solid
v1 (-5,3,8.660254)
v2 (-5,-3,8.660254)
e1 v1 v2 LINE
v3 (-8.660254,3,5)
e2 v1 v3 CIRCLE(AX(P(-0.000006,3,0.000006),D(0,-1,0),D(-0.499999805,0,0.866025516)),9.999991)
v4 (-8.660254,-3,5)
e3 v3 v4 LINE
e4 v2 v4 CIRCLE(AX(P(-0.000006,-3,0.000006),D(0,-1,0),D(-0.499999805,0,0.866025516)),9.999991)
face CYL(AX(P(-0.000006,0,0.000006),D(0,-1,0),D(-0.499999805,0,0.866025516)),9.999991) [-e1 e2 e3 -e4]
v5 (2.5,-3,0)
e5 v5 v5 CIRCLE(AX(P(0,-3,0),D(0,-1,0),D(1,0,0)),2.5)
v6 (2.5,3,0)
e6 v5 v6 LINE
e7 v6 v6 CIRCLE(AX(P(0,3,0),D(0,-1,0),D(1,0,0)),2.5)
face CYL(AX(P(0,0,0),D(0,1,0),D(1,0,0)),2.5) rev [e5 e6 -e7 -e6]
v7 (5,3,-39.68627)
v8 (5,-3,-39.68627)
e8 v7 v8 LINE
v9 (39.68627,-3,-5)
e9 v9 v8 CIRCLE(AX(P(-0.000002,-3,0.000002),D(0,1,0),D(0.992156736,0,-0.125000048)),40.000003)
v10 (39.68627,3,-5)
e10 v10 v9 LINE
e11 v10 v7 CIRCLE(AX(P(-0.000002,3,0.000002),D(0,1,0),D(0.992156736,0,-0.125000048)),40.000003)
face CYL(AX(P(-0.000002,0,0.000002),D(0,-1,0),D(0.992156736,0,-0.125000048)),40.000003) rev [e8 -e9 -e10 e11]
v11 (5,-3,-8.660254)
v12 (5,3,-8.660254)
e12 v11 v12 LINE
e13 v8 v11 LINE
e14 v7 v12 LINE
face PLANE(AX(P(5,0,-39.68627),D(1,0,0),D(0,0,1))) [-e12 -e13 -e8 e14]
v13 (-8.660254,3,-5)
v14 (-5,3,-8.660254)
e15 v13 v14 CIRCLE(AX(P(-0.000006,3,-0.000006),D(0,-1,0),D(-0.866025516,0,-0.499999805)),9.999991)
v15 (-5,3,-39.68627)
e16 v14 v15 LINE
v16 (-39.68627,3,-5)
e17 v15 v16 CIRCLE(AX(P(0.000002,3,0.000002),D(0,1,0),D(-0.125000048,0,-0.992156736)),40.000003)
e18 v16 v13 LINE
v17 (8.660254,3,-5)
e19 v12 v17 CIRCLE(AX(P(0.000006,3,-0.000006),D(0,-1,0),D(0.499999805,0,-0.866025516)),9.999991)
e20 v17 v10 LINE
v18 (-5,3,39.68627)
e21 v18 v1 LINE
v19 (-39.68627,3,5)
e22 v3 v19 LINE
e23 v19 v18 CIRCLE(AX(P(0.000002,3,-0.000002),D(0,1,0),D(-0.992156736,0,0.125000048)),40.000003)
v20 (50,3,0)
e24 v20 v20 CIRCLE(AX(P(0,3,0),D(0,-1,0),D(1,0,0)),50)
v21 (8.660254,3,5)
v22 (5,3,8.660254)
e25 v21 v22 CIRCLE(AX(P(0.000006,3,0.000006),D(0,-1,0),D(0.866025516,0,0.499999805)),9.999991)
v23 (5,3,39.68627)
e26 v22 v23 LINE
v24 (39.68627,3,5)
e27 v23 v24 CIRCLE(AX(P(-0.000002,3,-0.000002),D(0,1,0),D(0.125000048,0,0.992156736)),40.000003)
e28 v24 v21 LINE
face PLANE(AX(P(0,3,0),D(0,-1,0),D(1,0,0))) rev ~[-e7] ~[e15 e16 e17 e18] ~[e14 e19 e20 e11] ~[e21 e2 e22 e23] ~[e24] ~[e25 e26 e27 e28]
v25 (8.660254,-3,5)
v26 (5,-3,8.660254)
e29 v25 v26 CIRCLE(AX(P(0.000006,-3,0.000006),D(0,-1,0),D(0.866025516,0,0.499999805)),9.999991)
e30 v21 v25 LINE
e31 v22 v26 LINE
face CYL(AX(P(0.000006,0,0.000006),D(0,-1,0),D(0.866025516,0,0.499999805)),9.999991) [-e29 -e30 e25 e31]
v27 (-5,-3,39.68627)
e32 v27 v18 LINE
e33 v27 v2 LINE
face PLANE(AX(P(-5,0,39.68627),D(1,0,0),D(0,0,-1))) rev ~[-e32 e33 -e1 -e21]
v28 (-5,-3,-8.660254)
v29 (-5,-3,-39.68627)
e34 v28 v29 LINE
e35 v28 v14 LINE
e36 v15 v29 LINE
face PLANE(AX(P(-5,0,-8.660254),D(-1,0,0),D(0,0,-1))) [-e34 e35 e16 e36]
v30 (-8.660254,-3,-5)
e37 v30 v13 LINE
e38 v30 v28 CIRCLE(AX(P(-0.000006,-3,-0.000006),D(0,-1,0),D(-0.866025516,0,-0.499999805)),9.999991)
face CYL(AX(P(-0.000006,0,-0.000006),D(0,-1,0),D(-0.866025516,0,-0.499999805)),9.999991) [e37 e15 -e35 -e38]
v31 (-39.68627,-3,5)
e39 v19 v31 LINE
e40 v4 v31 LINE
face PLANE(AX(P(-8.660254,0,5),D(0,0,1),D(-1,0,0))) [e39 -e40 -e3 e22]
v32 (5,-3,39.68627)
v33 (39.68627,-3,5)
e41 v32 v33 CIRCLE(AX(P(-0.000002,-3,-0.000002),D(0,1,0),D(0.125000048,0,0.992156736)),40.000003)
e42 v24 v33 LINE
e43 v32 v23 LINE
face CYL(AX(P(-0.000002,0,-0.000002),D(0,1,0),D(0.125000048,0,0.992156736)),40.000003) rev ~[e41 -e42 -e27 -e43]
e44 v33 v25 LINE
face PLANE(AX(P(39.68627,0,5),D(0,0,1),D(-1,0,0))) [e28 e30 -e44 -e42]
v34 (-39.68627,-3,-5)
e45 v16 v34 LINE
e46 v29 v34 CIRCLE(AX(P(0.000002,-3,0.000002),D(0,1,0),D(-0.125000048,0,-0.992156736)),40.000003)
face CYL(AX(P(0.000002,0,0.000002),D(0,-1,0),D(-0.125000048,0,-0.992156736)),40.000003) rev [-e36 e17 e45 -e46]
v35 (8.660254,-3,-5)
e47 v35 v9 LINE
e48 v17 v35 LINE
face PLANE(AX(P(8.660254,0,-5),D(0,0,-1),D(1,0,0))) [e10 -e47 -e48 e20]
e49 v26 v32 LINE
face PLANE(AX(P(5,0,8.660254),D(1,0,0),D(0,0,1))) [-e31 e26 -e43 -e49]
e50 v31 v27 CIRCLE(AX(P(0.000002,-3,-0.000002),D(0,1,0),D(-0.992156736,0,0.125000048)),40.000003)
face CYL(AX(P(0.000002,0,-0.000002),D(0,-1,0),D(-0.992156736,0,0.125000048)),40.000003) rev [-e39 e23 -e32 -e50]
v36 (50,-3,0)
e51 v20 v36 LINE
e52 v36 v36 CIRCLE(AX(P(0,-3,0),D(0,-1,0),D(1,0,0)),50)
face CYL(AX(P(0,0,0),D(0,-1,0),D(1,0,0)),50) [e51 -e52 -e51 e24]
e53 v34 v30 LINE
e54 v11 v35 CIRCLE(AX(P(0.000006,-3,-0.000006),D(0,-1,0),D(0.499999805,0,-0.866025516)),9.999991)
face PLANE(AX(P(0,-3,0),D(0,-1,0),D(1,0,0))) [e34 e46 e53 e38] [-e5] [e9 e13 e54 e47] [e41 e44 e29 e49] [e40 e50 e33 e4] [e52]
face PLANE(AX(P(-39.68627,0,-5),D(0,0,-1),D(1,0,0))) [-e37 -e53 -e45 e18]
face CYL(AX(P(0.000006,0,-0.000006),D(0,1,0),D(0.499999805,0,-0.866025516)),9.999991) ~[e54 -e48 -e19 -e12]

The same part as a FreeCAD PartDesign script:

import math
import FreeCAD as App
import Part
import Sketcher

V = App.Vector

doc = App.newDocument("Part")
body = doc.addObject("PartDesign::Body", "Body")

# Sketch on XZ plane
sketch1 = body.newObject("Sketcher::SketchObject", "Sketch")
sketch1.AttachmentSupport = (doc.getObject("XZ_Plane"), [""])
sketch1.MapMode = "FlatFace"
sketch1.addGeometry([
    Part.Circle(V(0, 0, 0), V(0, 0, 1), 50),  # 0
    Part.LineSegment(V(-5, -8.7, 0), V(-5, -39.7, 0)),  # 1
    Part.ArcOfCircle(Part.Circle(V(0, 0, 0), V(0, 0, 1), 40), math.radians(-173), math.radians(-97)),  # 2
    Part.LineSegment(V(-39.7, -5, 0), V(-8.7, -5, 0)),  # 3
    Part.ArcOfCircle(Part.Circle(V(0, 0, 0), V(0, 0, 1), 10), math.radians(-150), math.radians(-120)),  # 4
    Part.Circle(V(0, 0, 0), V(0, 0, 1), 2.5),  # 5
    Part.ArcOfCircle(Part.Circle(V(0, 0, 0), V(0, 0, 1), 40), math.radians(-83), math.radians(-7)),  # 6
    Part.LineSegment(V(5, -39.7, 0), V(5, -8.7, 0)),  # 7
    Part.ArcOfCircle(Part.Circle(V(0, 0, 0), V(0, 0, 1), 10), math.radians(-60), math.radians(-30)),  # 8
    Part.LineSegment(V(8.7, -5, 0), V(39.7, -5, 0)),  # 9
    Part.LineSegment(V(-8.7, 5, 0), V(-39.7, 5, 0)),  # 10
    Part.ArcOfCircle(Part.Circle(V(0, 0, 0), V(0, 0, 1), 40), math.radians(97), math.radians(173)),  # 11
    Part.LineSegment(V(-5, 39.7, 0), V(-5, 8.7, 0)),  # 12
    Part.ArcOfCircle(Part.Circle(V(0, 0, 0), V(0, 0, 1), 10), math.radians(120), math.radians(150)),  # 13
    Part.LineSegment(V(5, 8.7, 0), V(5, 39.7, 0)),  # 14
    Part.ArcOfCircle(Part.Circle(V(0, 0, 0), V(0, 0, 1), 40), math.radians(7), math.radians(83)),  # 15
    Part.LineSegment(V(39.7, 5, 0), V(8.7, 5, 0)),  # 16
    Part.ArcOfCircle(Part.Circle(V(0, 0, 0), V(0, 0, 1), 10), math.radians(30), math.radians(60)),  # 17
], False)
sketch1.addConstraint([
    Sketcher.Constraint("Coincident", 1, 2, 2, 2),
    Sketcher.Constraint("Coincident", 2, 1, 3, 1),
    Sketcher.Constraint("Coincident", 3, 2, 4, 1),
    Sketcher.Constraint("Coincident", 4, 2, 1, 1),
    Sketcher.Constraint("Coincident", 6, 1, 7, 1),
    Sketcher.Constraint("Coincident", 7, 2, 8, 1),
    Sketcher.Constraint("Coincident", 8, 2, 9, 1),
    Sketcher.Constraint("Coincident", 9, 2, 6, 2),
    Sketcher.Constraint("Coincident", 10, 2, 11, 2),
    Sketcher.Constraint("Coincident", 11, 1, 12, 1),
    Sketcher.Constraint("Coincident", 12, 2, 13, 1),
    Sketcher.Constraint("Coincident", 13, 2, 10, 1),
    Sketcher.Constraint("Coincident", 14, 2, 15, 2),
    Sketcher.Constraint("Coincident", 15, 1, 16, 1),
    Sketcher.Constraint("Coincident", 16, 2, 17, 1),
    Sketcher.Constraint("Coincident", 17, 2, 14, 1),
    Sketcher.Constraint("Vertical", 1),
    Sketcher.Constraint("Horizontal", 3),
    Sketcher.Constraint("Vertical", 7),
    Sketcher.Constraint("Horizontal", 9),
    Sketcher.Constraint("Horizontal", 10),
    Sketcher.Constraint("Vertical", 12),
    Sketcher.Constraint("Vertical", 14),
    Sketcher.Constraint("Horizontal", 16),
    Sketcher.Constraint("Coincident", 0, 3, -1, 1),
    Sketcher.Constraint("Coincident", 2, 3, -1, 1),
    Sketcher.Constraint("Coincident", 4, 3, -1, 1),
    Sketcher.Constraint("Coincident", 5, 3, -1, 1),
    Sketcher.Constraint("Coincident", 6, 3, -1, 1),
    Sketcher.Constraint("Coincident", 8, 3, -1, 1),
    Sketcher.Constraint("Coincident", 11, 3, -1, 1),
    Sketcher.Constraint("Coincident", 13, 3, -1, 1),
    Sketcher.Constraint("Coincident", 15, 3, -1, 1),
    Sketcher.Constraint("Coincident", 17, 3, -1, 1),
    Sketcher.Constraint("Equal", 2, 6),
    Sketcher.Constraint("Equal", 4, 8),
    Sketcher.Constraint("Equal", 6, 11),
    Sketcher.Constraint("Equal", 8, 13),
    Sketcher.Constraint("Equal", 11, 15),
    Sketcher.Constraint("Equal", 13, 17),
    Sketcher.Constraint("Horizontal", 1, 2, 6, 1),
    Sketcher.Constraint("Horizontal", 3, 2, 8, 2),
    Sketcher.Constraint("Horizontal", 11, 1, 14, 2),
    Sketcher.Constraint("Horizontal", 13, 2, 15, 1),
    Sketcher.Constraint("Vertical", 2, 1, 10, 2),
    Sketcher.Constraint("Vertical", 4, 2, 11, 1),
    Sketcher.Constraint("Equal", 16, 1),
    Sketcher.Constraint("Diameter", 0, 100.0),
    Sketcher.Constraint("Diameter", 5, 5.0),
    Sketcher.Constraint("DistanceX", 1, 2, -1, 1, 5.0),
    Sketcher.Constraint("Radius", 4, 9.999991),
    Sketcher.Constraint("Radius", 2, 40.000003),
])
pad1 = body.newObject("PartDesign::Pad", "Pad")
pad1.Profile = sketch1
pad1.Length = 6
pad1.Midplane = True

doc.recompute()
